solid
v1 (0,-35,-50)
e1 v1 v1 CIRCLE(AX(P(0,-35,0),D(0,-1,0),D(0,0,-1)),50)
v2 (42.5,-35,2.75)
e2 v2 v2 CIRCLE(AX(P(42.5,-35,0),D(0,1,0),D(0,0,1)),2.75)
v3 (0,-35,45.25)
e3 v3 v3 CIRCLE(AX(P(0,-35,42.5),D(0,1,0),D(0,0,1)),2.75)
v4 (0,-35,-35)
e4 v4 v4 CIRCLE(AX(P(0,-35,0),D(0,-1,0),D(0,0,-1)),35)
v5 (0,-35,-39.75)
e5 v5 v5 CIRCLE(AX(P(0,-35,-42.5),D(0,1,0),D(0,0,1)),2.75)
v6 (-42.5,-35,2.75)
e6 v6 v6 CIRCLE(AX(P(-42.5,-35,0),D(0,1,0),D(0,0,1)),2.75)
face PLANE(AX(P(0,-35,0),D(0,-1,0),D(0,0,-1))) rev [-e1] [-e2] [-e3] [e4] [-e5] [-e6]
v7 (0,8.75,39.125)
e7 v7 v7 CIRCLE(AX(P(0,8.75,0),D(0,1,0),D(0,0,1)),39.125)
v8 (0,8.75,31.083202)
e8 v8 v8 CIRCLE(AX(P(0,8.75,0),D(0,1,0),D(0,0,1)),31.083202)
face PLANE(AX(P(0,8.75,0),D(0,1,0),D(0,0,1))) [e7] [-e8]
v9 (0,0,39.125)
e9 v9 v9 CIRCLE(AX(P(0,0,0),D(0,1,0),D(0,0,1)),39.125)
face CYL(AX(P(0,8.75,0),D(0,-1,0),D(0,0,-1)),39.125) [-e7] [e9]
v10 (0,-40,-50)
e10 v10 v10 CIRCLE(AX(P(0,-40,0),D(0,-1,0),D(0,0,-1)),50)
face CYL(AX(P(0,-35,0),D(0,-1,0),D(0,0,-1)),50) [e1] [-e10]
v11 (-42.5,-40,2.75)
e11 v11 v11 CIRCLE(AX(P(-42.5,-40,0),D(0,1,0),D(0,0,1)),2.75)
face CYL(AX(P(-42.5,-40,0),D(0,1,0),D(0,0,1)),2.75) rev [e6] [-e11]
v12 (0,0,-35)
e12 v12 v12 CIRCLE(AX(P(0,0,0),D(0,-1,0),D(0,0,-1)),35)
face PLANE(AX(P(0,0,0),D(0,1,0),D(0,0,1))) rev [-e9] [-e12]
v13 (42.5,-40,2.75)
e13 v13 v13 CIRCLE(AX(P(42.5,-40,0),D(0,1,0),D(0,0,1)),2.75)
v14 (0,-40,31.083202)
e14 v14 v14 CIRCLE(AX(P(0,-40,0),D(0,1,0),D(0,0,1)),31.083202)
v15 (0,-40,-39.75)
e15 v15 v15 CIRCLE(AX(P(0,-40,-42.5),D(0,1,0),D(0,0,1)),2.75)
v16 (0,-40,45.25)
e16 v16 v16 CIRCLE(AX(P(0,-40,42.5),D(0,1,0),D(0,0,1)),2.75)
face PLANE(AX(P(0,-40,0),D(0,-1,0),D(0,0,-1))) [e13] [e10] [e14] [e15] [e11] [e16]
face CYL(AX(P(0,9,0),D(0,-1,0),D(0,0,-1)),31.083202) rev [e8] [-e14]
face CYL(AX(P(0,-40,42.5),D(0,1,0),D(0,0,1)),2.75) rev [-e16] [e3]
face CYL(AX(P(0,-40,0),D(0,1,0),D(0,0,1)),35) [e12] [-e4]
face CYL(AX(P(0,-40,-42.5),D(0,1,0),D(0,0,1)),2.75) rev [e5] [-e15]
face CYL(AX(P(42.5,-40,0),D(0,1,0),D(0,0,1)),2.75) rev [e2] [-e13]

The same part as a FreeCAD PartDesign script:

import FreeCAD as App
import Part
import Sketcher
from FreeCAD import Vector
Q = App.Units.Quantity

doc = App.newDocument("Part")
body = doc.addObject("PartDesign::Body", "Body")

sketch1 = body.newObject("Sketcher::SketchObject", "Sketch")
sketch1.AttachmentSupport = (doc.getObject("XZ_Plane"), [""])
sketch1.MapMode = "FlatFace"
sketch1.addGeometry(Part.Circle(Vector(0, 0, 0), Vector(0, 0, 1), 39), False)
sketch1.addConstraint([
    Sketcher.Constraint("Coincident", 0, 3, -1, 1),
    Sketcher.Constraint("Diameter", 0, Q("78.25 mm")),
])
pad1 = body.newObject("PartDesign::Pad", "Pad")
pad1.Profile = sketch1
pad1.Length = 8.75
pad1.Reversed = True

sketch2 = body.newObject("Sketcher::SketchObject", "Sketch001")
sketch2.AttachmentSupport = (doc.getObject("XZ_Plane"), [""])
sketch2.MapMode = "FlatFace"
sketch2.addGeometry(Part.Circle(Vector(0, 0, 0), Vector(0, 0, 1), 31), False)
sketch2.addConstraint([
    Sketcher.Constraint("Coincident", 0, 3, -1, 1),
    Sketcher.Constraint("Diameter", 0, Q("62.166403 mm")),
])
pocket1 = body.newObject("PartDesign::Pocket", "Pocket")
pocket1.Profile = sketch2
pocket1.Length = 9

sketch3 = body.newObject("Sketcher::SketchObject", "Sketch002")
sketch3.AttachmentSupport = (doc.getObject("XZ_Plane"), [""])
sketch3.MapMode = "FlatFace"
sketch3.AttachmentOffset = App.Placement(Vector(0, 0, 40), App.Rotation())
sketch3.addGeometry([
    Part.Circle(Vector(0, 0, 0), Vector(0, 0, 1), 35),
    Part.Circle(Vector(0, 0, 0), Vector(0, 0, 1), 31),
], False)
sketch3.addConstraint([
    Sketcher.Constraint("Coincident", 0, 3, -1, 1),
    Sketcher.Constraint("Coincident", 1, 3, -1, 1),
    Sketcher.Constraint("Diameter", 0, Q("70 mm")),
    Sketcher.Constraint("Diameter", 1, Q("62.166403 mm")),
])
pad2 = body.newObject("PartDesign::Pad", "Pad001")
pad2.Profile = sketch3
pad2.Length = 40
pad2.Reversed = True

sketch4 = body.newObject("Sketcher::SketchObject", "Sketch003")
sketch4.AttachmentSupport = (doc.getObject("XZ_Plane"), [""])
sketch4.MapMode = "FlatFace"
sketch4.AttachmentOffset = App.Placement(Vector(0, 0, 40), App.Rotation())
sketch4.addGeometry(Part.Circle(Vector(0, 0, 0), Vector(0, 0, 1), 50), False)
sketch4.addConstraint([
    Sketcher.Constraint("Coincident", 0, 3, -1, 1),
    Sketcher.Constraint("Diameter", 0, Q("100 mm")),
])
pad3 = body.newObject("PartDesign::Pad", "Pad002")
pad3.Profile = sketch4
pad3.Length = 5
pad3.Reversed = True

sketch5 = body.newObject("Sketcher::SketchObject", "Sketch004")
sketch5.AttachmentSupport = (doc.getObject("XZ_Plane"), [""])
sketch5.MapMode = "FlatFace"
sketch5.AttachmentOffset = App.Placement(Vector(0, 0, 35), App.Rotation())
sketch5.addGeometry([
    Part.Circle(Vector(0, -42.5, 0), Vector(0, 0, 1), 2.8),
    Part.Circle(Vector(42.5, 0, 0), Vector(0, 0, 1), 2.8),
    Part.Circle(Vector(0, 42.5, 0), Vector(0, 0, 1), 2.8),
    Part.Circle(Vector(-42.5, 0, 0), Vector(0, 0, 1), 2.8),
], False)
sketch5.addConstraint([
    Sketcher.Constraint("Equal", 0, 1),
    Sketcher.Constraint("Equal", 1, 2),
    Sketcher.Constraint("Equal", 2, 3),
    Sketcher.Constraint("Symmetric", 0, 3, 2, 3, -1, 1),
    Sketcher.Constraint("Symmetric", 1, 3, 3, 3, -1, 1),
    Sketcher.Constraint("PointOnObject", 0, 3, -2),
    Sketcher.Constraint("PointOnObject", 1, 3, -1),
    Sketcher.Constraint("Diameter", 0, Q("5.5 mm")),
    Sketcher.Constraint("DistanceY", 0, 3, 2, 3, Q("85 mm")),
    Sketcher.Constraint("DistanceX", 3, 3, 1, 3, Q("85 mm")),
])
pocket2 = body.newObject("PartDesign::Pocket", "Pocket001")
pocket2.Profile = sketch5
pocket2.Length = 5
pocket2.Reversed = True

sketch6 = body.newObject("Sketcher::SketchObject", "Sketch005")
sketch6.AttachmentSupport = (doc.getObject("XZ_Plane"), [""])
sketch6.MapMode = "FlatFace"
sketch6.AttachmentOffset = App.Placement(Vector(0, 0, 40), App.Rotation())
sketch6.addGeometry(Part.Circle(Vector(0, 0, 0), Vector(0, 0, 1), 31), False)
sketch6.addConstraint([
    Sketcher.Constraint("Coincident", 0, 3, -1, 1),
    Sketcher.Constraint("Diameter", 0, Q("62.166403 mm")),
])
pocket3 = body.newObject("PartDesign::Pocket", "Pocket002")
pocket3.Profile = sketch6
pocket3.Length = 5

doc.recompute()
